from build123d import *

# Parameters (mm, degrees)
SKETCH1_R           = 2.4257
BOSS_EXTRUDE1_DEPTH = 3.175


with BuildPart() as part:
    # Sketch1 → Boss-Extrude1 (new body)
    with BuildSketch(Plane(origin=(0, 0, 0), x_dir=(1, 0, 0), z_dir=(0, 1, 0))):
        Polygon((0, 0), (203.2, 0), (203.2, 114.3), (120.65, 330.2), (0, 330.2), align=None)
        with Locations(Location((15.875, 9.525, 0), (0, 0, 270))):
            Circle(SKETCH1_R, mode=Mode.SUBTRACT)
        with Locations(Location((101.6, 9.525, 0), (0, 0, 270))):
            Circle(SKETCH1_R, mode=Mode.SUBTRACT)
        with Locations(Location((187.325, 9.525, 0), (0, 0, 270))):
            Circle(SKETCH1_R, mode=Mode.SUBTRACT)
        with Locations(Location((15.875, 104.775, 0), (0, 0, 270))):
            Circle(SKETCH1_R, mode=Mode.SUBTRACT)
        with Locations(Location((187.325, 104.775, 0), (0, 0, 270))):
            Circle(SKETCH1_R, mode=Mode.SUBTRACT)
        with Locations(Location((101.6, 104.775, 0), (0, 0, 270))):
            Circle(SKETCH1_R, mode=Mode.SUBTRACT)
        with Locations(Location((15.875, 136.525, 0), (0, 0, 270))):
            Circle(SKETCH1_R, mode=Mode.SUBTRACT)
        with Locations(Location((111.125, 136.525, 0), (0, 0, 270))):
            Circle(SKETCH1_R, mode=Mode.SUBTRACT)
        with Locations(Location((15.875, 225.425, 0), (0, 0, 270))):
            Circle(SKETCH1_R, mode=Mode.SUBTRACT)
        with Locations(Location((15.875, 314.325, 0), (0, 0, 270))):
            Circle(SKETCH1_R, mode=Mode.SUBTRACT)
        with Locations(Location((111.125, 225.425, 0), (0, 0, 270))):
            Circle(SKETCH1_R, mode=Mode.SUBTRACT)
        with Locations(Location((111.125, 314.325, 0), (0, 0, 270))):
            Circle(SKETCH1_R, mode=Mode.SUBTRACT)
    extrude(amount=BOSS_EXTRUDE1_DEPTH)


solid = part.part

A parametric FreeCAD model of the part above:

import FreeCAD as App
import Part
import Sketcher
from FreeCAD import Vector
Q = App.Units.Quantity

doc = App.newDocument("Part")
params = doc.addObject("Spreadsheet::Sheet", "Params")
for row, (alias, value) in enumerate([
    ("sketch1_width", "8 in"),
    ("sketch1_height", "13 in"),
    ("sketch1_diameter", "0.191 in"),
    ("sketch1_height2", "4.5 in"),
    ("sketch1_width2", "4.75 in"),
    ("pad1_length", "0.125 in"),
], start=1):
    params.set(f"A{row}", alias)
    params.set(f"B{row}", "=" + value)
    params.setAlias(f"B{row}", alias)

body = doc.addObject("PartDesign::Body", "Body")

sketch1 = body.newObject("Sketcher::SketchObject", "Sketch")
sketch1.AttachmentSupport = (doc.getObject("XZ_Plane"), [""])
sketch1.MapMode = "FlatFace"
sketch1.addGeometry(Part.LineSegment(Vector(0, 0, 0), Vector(203.2, 0, 0)), False)
sketch1.addGeometry(Part.LineSegment(Vector(203.2, 0, 0), Vector(203.2, -114.3, 0)), False)
sketch1.addGeometry(Part.LineSegment(Vector(203.2, -114.3, 0), Vector(120.7, -330.2, 0)), False)
sketch1.addGeometry(Part.LineSegment(Vector(120.7, -330.2, 0), Vector(0, -330.2, 0)), False)
sketch1.addGeometry(Part.LineSegment(Vector(0, -330.2, 0), Vector(0, 0, 0)), False)
sketch1.addGeometry(Part.Circle(Vector(15.9, -9.5, 0), Vector(0, 0, 1), 2.4), False)
sketch1.addGeometry(Part.Circle(Vector(15.9, -104.8, 0), Vector(0, 0, 1), 2.4), False)
sketch1.addGeometry(Part.Circle(Vector(15.9, -136.5, 0), Vector(0, 0, 1), 2.4), False)
sketch1.addGeometry(Part.Circle(Vector(101.6, -9.5, 0), Vector(0, 0, 1), 2.4), False)
sketch1.addGeometry(Part.Circle(Vector(187.3, -9.5, 0), Vector(0, 0, 1), 2.4), False)
sketch1.addGeometry(Part.Circle(Vector(101.6, -104.8, 0), Vector(0, 0, 1), 2.4), False)
sketch1.addGeometry(Part.Circle(Vector(111.1, -136.5, 0), Vector(0, 0, 1), 2.4), False)
sketch1.addGeometry(Part.Circle(Vector(187.3, -104.8, 0), Vector(0, 0, 1), 2.4), False)
sketch1.addGeometry(Part.Circle(Vector(15.9, -225.4, 0), Vector(0, 0, 1), 2.4), False)
sketch1.addGeometry(Part.Circle(Vector(15.9, -314.3, 0), Vector(0, 0, 1), 2.4), False)
sketch1.addGeometry(Part.Circle(Vector(111.1, -225.4, 0), Vector(0, 0, 1), 2.4), False)
sketch1.addGeometry(Part.Circle(Vector(111.1, -314.3, 0), Vector(0, 0, 1), 2.4), False)
sketch1.addConstraint(Sketcher.Constraint("Coincident", 0, 2, 1, 1))
sketch1.addConstraint(Sketcher.Constraint("Coincident", 1, 2, 2, 1))
sketch1.addConstraint(Sketcher.Constraint("Coincident", 2, 2, 3, 1))
sketch1.addConstraint(Sketcher.Constraint("Coincident", 3, 2, 4, 1))
sketch1.addConstraint(Sketcher.Constraint("Coincident", 4, 2, 0, 1))
sketch1.addConstraint(Sketcher.Constraint("Horizontal", 0))
sketch1.addConstraint(Sketcher.Constraint("Vertical", 1))
sketch1.addConstraint(Sketcher.Constraint("Horizontal", 3))
sketch1.addConstraint(Sketcher.Constraint("Vertical", 4))
sketch1.addConstraint(Sketcher.Constraint("Coincident", 4, 2, -1, 1))
sketch1.addConstraint(Sketcher.Constraint("Equal", 5, 6))
sketch1.addConstraint(Sketcher.Constraint("Equal", 6, 7))
sketch1.addConstraint(Sketcher.Constraint("Equal", 7, 8))
sketch1.addConstraint(Sketcher.Constraint("Equal", 8, 9))
sketch1.addConstraint(Sketcher.Constraint("Equal", 9, 10))
sketch1.addConstraint(Sketcher.Constraint("Equal", 10, 11))
sketch1.addConstraint(Sketcher.Constraint("Equal", 11, 12))
sketch1.addConstraint(Sketcher.Constraint("Equal", 12, 13))
sketch1.addConstraint(Sketcher.Constraint("Equal", 13, 14))
sketch1.addConstraint(Sketcher.Constraint("Equal", 14, 15))
sketch1.addConstraint(Sketcher.Constraint("Equal", 15, 16))
sketch1.addConstraint(Sketcher.Constraint("Horizontal", 5, 3, 8, 3))
sketch1.addConstraint(Sketcher.Constraint("Horizontal", 8, 3, 9, 3))
sketch1.addConstraint(Sketcher.Constraint("Horizontal", 6, 3, 10, 3))
sketch1.addConstraint(Sketcher.Constraint("Horizontal", 7, 3, 11, 3))
sketch1.addConstraint(Sketcher.Constraint("Horizontal", 10, 3, 12, 3))
sketch1.addConstraint(Sketcher.Constraint("Horizontal", 13, 3, 15, 3))
sketch1.addConstraint(Sketcher.Constraint("Horizontal", 14, 3, 16, 3))
sketch1.addConstraint(Sketcher.Constraint("Vertical", 5, 3, 6, 3))
sketch1.addConstraint(Sketcher.Constraint("Vertical", 6, 3, 7, 3))
sketch1.addConstraint(Sketcher.Constraint("Vertical", 8, 3, 10, 3))
sketch1.addConstraint(Sketcher.Constraint("Vertical", 9, 3, 12, 3))
sketch1.addConstraint(Sketcher.Constraint("Vertical", 7, 3, 13, 3))
sketch1.addConstraint(Sketcher.Constraint("Vertical", 13, 3, 14, 3))
sketch1.addConstraint(Sketcher.Constraint("Vertical", 11, 3, 15, 3))
sketch1.addConstraint(Sketcher.Constraint("Vertical", 15, 3, 16, 3))
sketch1.addConstraint(Sketcher.Constraint("DistanceX", 0, 1, 0, 2, Q("8 in")))
sketch1.addConstraint(Sketcher.Constraint("DistanceY", 4, 1, 4, 2, Q("13 in")))
sketch1.addConstraint(Sketcher.Constraint("Diameter", 5, Q("0.191 in")))
sketch1.addConstraint(Sketcher.Constraint("DistanceY", 1, 2, 1, 1, Q("4.5 in")))
sketch1.addConstraint(Sketcher.Constraint("DistanceX", -1, 1, 8, 3, Q("4 in")))
sketch1.addConstraint(Sketcher.Constraint("DistanceY", 7, 3, 5, 3, Q("5 in")))
sketch1.addConstraint(Sketcher.Constraint("DistanceX", 11, 3, 9, 3, Q("3 in")))
sketch1.addConstraint(Sketcher.Constraint("DistanceY", 14, 3, 7, 3, Q("7 in")))
sketch1.addConstraint(Sketcher.Constraint("DistanceX", 3, 2, 3, 1, Q("4.75 in")))
sketch1.addConstraint(Sketcher.Constraint("DistanceY", 13, 3, 7, 3, Q("3.5 in")))
sketch1.addConstraint(Sketcher.Constraint("DistanceY", 6, 3, 5, 3, Q("3.75 in")))
sketch1.addConstraint(Sketcher.Constraint("DistanceX", 5, 3, 9, 3, Q("6.75 in")))
sketch1.addConstraint(Sketcher.Constraint("DistanceX", -1, 1, 5, 3, Q("0.625 in")))
sketch1.addConstraint(Sketcher.Constraint("DistanceY", 5, 3, -1, 1, Q("0.375 in")))
sketch1.setExpression("Constraints[36]", "Params.sketch1_width")
sketch1.setExpression("Constraints[37]", "Params.sketch1_height")
sketch1.setExpression("Constraints[38]", "Params.sketch1_diameter")
sketch1.setExpression("Constraints[39]", "Params.sketch1_height2")
sketch1.setExpression("Constraints[44]", "Params.sketch1_width2")
pad1 = body.newObject("PartDesign::Pad", "Pad")
pad1.Profile = sketch1
pad1.setExpression("Length", "Params.pad1_length")
pad1.Reversed = True

doc.recompute()
